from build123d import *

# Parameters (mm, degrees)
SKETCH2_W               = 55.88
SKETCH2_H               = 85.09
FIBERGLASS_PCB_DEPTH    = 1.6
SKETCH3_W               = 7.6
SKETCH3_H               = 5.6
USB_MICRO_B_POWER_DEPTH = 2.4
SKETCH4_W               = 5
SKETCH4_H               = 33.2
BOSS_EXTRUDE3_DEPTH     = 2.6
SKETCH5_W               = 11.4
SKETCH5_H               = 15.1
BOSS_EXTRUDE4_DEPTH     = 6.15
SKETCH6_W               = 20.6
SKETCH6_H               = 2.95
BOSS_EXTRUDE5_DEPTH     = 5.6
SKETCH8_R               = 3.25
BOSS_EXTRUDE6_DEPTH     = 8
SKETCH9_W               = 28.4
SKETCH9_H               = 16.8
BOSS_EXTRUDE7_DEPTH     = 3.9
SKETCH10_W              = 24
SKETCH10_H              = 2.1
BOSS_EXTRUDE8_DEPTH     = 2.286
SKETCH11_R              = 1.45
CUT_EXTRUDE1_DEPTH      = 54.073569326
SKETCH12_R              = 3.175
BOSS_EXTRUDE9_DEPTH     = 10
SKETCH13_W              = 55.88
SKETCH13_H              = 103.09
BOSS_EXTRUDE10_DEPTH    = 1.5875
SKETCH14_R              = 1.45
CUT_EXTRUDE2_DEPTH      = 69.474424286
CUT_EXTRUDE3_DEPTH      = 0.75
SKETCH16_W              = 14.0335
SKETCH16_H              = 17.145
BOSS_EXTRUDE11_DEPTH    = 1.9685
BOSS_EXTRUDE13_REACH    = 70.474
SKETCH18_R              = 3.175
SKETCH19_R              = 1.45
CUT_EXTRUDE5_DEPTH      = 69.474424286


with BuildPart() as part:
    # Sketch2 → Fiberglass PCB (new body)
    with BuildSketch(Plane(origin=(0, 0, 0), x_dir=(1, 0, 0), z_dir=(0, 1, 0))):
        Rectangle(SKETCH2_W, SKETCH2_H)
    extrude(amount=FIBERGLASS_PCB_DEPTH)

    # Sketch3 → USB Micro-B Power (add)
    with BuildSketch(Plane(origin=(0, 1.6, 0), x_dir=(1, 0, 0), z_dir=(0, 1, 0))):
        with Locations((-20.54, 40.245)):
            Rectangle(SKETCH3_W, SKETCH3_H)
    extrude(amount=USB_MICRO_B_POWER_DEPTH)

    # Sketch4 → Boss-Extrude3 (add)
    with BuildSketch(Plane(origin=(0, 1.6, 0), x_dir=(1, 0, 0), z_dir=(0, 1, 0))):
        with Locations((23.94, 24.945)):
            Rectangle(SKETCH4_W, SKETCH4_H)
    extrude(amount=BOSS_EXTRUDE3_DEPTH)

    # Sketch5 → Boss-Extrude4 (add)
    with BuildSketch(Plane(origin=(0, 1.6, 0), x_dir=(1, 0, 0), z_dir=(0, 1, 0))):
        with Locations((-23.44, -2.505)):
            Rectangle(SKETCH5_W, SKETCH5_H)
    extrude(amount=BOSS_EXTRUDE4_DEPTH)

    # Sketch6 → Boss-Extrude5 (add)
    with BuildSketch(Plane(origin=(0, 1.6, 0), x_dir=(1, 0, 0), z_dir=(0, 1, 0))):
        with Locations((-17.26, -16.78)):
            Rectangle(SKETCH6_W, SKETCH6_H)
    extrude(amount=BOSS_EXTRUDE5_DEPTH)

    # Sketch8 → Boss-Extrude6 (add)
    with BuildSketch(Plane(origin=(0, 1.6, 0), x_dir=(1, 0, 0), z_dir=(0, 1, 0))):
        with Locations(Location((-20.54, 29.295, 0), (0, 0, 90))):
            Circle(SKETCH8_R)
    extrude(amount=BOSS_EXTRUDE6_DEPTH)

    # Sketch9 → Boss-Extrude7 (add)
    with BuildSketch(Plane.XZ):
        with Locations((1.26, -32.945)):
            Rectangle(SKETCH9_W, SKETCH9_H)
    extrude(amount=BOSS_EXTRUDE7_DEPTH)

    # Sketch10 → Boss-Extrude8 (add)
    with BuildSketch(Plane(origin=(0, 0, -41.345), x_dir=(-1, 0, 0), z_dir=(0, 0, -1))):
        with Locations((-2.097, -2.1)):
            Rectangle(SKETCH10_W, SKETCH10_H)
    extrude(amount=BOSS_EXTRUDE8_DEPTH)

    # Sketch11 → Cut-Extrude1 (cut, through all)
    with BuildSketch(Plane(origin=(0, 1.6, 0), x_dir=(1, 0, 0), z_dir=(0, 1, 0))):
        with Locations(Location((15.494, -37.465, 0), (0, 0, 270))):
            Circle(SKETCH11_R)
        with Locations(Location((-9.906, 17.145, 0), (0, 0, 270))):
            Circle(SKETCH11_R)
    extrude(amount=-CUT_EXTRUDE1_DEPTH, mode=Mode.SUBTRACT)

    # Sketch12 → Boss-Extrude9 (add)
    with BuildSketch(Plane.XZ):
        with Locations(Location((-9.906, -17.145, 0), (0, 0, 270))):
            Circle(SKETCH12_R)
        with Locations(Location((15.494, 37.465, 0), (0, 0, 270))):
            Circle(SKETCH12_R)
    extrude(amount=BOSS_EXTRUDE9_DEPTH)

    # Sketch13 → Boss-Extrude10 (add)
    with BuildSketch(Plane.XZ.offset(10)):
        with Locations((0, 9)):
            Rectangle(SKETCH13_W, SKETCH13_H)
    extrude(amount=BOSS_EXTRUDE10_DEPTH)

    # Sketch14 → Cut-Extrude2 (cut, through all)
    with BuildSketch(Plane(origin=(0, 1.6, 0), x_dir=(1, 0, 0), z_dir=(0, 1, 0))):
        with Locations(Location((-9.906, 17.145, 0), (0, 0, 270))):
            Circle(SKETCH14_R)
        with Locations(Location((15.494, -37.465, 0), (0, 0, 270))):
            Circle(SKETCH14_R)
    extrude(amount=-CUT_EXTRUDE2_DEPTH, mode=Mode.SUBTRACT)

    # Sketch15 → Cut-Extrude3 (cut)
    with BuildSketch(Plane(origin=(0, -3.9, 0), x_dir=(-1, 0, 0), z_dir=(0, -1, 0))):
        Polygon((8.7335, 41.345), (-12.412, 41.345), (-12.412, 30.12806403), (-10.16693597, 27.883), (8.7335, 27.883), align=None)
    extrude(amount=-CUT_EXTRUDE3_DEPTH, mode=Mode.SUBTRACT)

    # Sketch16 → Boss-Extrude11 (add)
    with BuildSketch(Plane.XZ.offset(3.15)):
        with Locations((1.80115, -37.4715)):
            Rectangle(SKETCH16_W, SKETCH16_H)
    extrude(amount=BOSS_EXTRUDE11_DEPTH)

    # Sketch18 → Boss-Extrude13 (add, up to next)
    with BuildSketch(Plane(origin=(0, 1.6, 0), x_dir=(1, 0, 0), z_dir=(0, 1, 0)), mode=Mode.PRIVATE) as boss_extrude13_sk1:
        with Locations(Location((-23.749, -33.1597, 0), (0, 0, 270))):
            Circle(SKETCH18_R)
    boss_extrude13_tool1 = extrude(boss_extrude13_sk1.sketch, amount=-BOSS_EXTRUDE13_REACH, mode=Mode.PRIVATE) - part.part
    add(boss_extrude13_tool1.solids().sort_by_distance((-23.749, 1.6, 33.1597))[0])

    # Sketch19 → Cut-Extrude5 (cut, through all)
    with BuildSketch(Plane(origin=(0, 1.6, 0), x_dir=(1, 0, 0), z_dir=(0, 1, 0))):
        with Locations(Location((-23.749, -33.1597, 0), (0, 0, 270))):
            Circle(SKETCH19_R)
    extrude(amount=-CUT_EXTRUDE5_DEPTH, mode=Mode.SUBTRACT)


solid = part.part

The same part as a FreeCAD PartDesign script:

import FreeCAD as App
import Part
import Sketcher
Q = App.Units.Quantity


def add_polygon(sketch, points):
    """Adds a closed chain of lines whose ends are joined by coincident constraints."""
    first, n = sketch.GeometryCount, len(points)
    for a, b in zip(points, points[1:] + points[:1]):
        sketch.addGeometry(Part.LineSegment(App.Vector(*a, 0), App.Vector(*b, 0)), False)
    for i in range(n):
        sketch.addConstraint(Sketcher.Constraint("Coincident", first + i, 2, first + (i + 1) % n, 1))

doc = App.newDocument("Part")
body = doc.addObject("PartDesign::Body", "Body")

sketch1 = body.newObject("Sketcher::SketchObject", "Sketch")
sketch1.AttachmentSupport = (doc.getObject("XZ_Plane"), [""])
sketch1.MapMode = "FlatFace"
add_polygon(sketch1, [(-28, -43), (-28, 43), (28, 43), (28, -43)])
sketch1.addConstraint([
    Sketcher.Constraint("Vertical", 0),
    Sketcher.Constraint("Horizontal", 1),
    Sketcher.Constraint("Vertical", 2),
    Sketcher.Constraint("Horizontal", 3),
    Sketcher.Constraint("Symmetric", 0, 2, 2, 2, -1, 1),
    Sketcher.Constraint("DistanceX", 1, 1, 1, 2, Q("55.88 mm")),
    Sketcher.Constraint("DistanceY", 0, 1, 0, 2, Q("85.09 mm")),
])
pad1 = body.newObject("PartDesign::Pad", "Pad")
pad1.Profile = sketch1
pad1.Length = 1.6
pad1.Reversed = True

sketch2 = body.newObject("Sketcher::SketchObject", "Sketch001")
sketch2.AttachmentSupport = (doc.getObject("XZ_Plane"), [""])
sketch2.MapMode = "FlatFace"
sketch2.AttachmentOffset = App.Placement(App.Vector(0, 0, -1.6), App.Rotation())
add_polygon(sketch2, [(-24, -43), (-24, -37), (-17, -37), (-17, -43)])
sketch2.addConstraint([
    Sketcher.Constraint("Vertical", 0),
    Sketcher.Constraint("Horizontal", 1),
    Sketcher.Constraint("Vertical", 2),
    Sketcher.Constraint("Horizontal", 3),
    Sketcher.Constraint("DistanceX", 1, 1, 1, 2, Q("7.6 mm")),
    Sketcher.Constraint("DistanceY", 0, 1, 0, 2, Q("5.6 mm")),
    Sketcher.Constraint("DistanceX", 0, 2, -1, 1, Q("24.34 mm")),
    Sketcher.Constraint("DistanceY", 0, 2, -1, 1, Q("37.445 mm")),
])
pad2 = body.newObject("PartDesign::Pad", "Pad001")
pad2.Profile = sketch2
pad2.Length = 2.4
pad2.Reversed = True

sketch3 = body.newObject("Sketcher::SketchObject", "Sketch002")
sketch3.AttachmentSupport = (doc.getObject("XZ_Plane"), [""])
sketch3.MapMode = "FlatFace"
sketch3.AttachmentOffset = App.Placement(App.Vector(0, 0, -1.6), App.Rotation())
add_polygon(sketch3, [(21, -42), (21, -8), (26, -8), (26, -42)])
sketch3.addConstraint([
    Sketcher.Constraint("Vertical", 0),
    Sketcher.Constraint("Horizontal", 1),
    Sketcher.Constraint("Vertical", 2),
    Sketcher.Constraint("Horizontal", 3),
    Sketcher.Constraint("DistanceX", 1, 1, 1, 2, Q("5 mm")),
    Sketcher.Constraint("DistanceY", 0, 1, 0, 2, Q("33.2 mm")),
    Sketcher.Constraint("DistanceX", -1, 1, 0, 2, Q("21.44 mm")),
    Sketcher.Constraint("DistanceY", 0, 2, -1, 1, Q("8.345 mm")),
])
pad3 = body.newObject("PartDesign::Pad", "Pad002")
pad3.Profile = sketch3
pad3.Length = 2.6
pad3.Reversed = True

sketch4 = body.newObject("Sketcher::SketchObject", "Sketch003")
sketch4.AttachmentSupport = (doc.getObject("XZ_Plane"), [""])
sketch4.MapMode = "FlatFace"
sketch4.AttachmentOffset = App.Placement(App.Vector(0, 0, -1.6), App.Rotation())
add_polygon(sketch4, [(-29, -5), (-29, 10), (-18, 10), (-18, -5)])
sketch4.addConstraint([
    Sketcher.Constraint("Vertical", 0),
    Sketcher.Constraint("Horizontal", 1),
    Sketcher.Constraint("Vertical", 2),
    Sketcher.Constraint("Horizontal", 3),
    Sketcher.Constraint("DistanceX", 1, 1, 1, 2, Q("11.4 mm")),
    Sketcher.Constraint("DistanceY", 0, 1, 0, 2, Q("15.1 mm")),
    Sketcher.Constraint("DistanceX", 0, 2, -1, 1, Q("29.14 mm")),
    Sketcher.Constraint("DistanceY", -1, 1, 0, 2, Q("10.055 mm")),
])
pad4 = body.newObject("PartDesign::Pad", "Pad003")
pad4.Profile = sketch4
pad4.Length = 6.15
pad4.Reversed = True

sketch5 = body.newObject("Sketcher::SketchObject", "Sketch004")
sketch5.AttachmentSupport = (doc.getObject("XZ_Plane"), [""])
sketch5.MapMode = "FlatFace"
sketch5.AttachmentOffset = App.Placement(App.Vector(0, 0, -1.6), App.Rotation())
add_polygon(sketch5, [(-27.6, 15.3), (-27.6, 18.3), (-7, 18.3), (-7, 15.3)])
sketch5.addConstraint([
    Sketcher.Constraint("Vertical", 0),
    Sketcher.Constraint("Horizontal", 1),
    Sketcher.Constraint("Vertical", 2),
    Sketcher.Constraint("Horizontal", 3),
    Sketcher.Constraint("DistanceX", 1, 1, 1, 2, Q("20.6 mm")),
    Sketcher.Constraint("DistanceY", 0, 1, 0, 2, Q("2.95 mm")),
    Sketcher.Constraint("DistanceX", 0, 2, -1, 1, Q("27.56 mm")),
    Sketcher.Constraint("DistanceY", -1, 1, 0, 2, Q("18.255 mm")),
])
pad5 = body.newObject("PartDesign::Pad", "Pad004")
pad5.Profile = sketch5
pad5.Length = 5.6
pad5.Reversed = True

sketch6 = body.newObject("Sketcher::SketchObject", "Sketch005")
sketch6.AttachmentSupport = (doc.getObject("XZ_Plane"), [""])
sketch6.MapMode = "FlatFace"
sketch6.AttachmentOffset = App.Placement(App.Vector(0, 0, -1.6), App.Rotation())
sketch6.addGeometry(Part.Circle(App.Vector(-20.5, -29.3, 0), App.Vector(0, 0, 1), 3.2), False)
sketch6.addConstraint([
    Sketcher.Constraint("Diameter", 0, Q("6.5 mm")),
    Sketcher.Constraint("DistanceX", 0, 3, -1, 1, Q("20.54 mm")),
    Sketcher.Constraint("DistanceY", 0, 3, -1, 1, Q("29.295 mm")),
])
pad6 = body.newObject("PartDesign::Pad", "Pad005")
pad6.Profile = sketch6
pad6.Length = 8
pad6.Reversed = True

sketch7 = body.newObject("Sketcher::SketchObject", "Sketch006")
sketch7.AttachmentSupport = (doc.getObject("XZ_Plane"), [""])
sketch7.MapMode = "FlatFace"
add_polygon(sketch7, [(-13, -25), (-13, -41), (15, -41), (15, -25)])
sketch7.addConstraint([
    Sketcher.Constraint("Vertical", 0),
    Sketcher.Constraint("Horizontal", 1),
    Sketcher.Constraint("Vertical", 2),
    Sketcher.Constraint("Horizontal", 3),
    Sketcher.Constraint("DistanceX", 1, 1, 1, 2, Q("28.4 mm")),
    Sketcher.Constraint("DistanceY", 0, 2, 0, 1, Q("16.8 mm")),
    Sketcher.Constraint("DistanceX", 0, 2, -1, 1, Q("12.94 mm")),
    Sketcher.Constraint("DistanceY", 0, 2, -1, 1, Q("41.345 mm")),
])
pad7 = body.newObject("PartDesign::Pad", "Pad006")
pad7.Profile = sketch7
pad7.Length = 3.9

sketch8 = body.newObject("Sketcher::SketchObject", "Sketch007")
sketch8.AttachmentSupport = (doc.getObject("XY_Plane"), [""])
sketch8.MapMode = "FlatFace"
sketch8.AttachmentOffset = App.Placement(App.Vector(0, 0, -41.345), App.Rotation())
add_polygon(sketch8, [(14.1, -1.1), (14.1, -3.1), (-9.9, -3.1), (-9.9, -1.1)])
sketch8.addConstraint([
    Sketcher.Constraint("Vertical", 0),
    Sketcher.Constraint("Horizontal", 1),
    Sketcher.Constraint("Vertical", 2),
    Sketcher.Constraint("Horizontal", 3),
    Sketcher.Constraint("DistanceX", 1, 2, 1, 1, Q("24 mm")),
    Sketcher.Constraint("DistanceY", 0, 2, 0, 1, Q("2.1 mm")),
    Sketcher.Constraint("DistanceY", 0, 2, -1, 1, Q("3.15 mm")),
    Sketcher.Constraint("DistanceX", -1, 1, 0, 2, Q("14.097 mm")),
])
pad8 = body.newObject("PartDesign::Pad", "Pad007")
pad8.Profile = sketch8
pad8.Length = 2.286
pad8.Reversed = True

sketch9 = body.newObject("Sketcher::SketchObject", "Sketch008")
sketch9.AttachmentSupport = (doc.getObject("XZ_Plane"), [""])
sketch9.MapMode = "FlatFace"
sketch9.AttachmentOffset = App.Placement(App.Vector(0, 0, -1.6), App.Rotation())
sketch9.addGeometry([
    Part.Circle(App.Vector(15.5, 37.5, 0), App.Vector(0, 0, 1), 1.4),
    Part.Circle(App.Vector(-9.9, -17.1, 0), App.Vector(0, 0, 1), 1.4),
], False)
sketch9.addConstraint([
    Sketcher.Constraint("Equal", 0, 1),
    Sketcher.Constraint("Diameter", 0, Q("2.9 mm")),
    Sketcher.Constraint("DistanceX", 1, 3, 0, 3, Q("25.4 mm")),
    Sketcher.Constraint("DistanceY", 1, 3, 0, 3, Q("54.61 mm")),
    Sketcher.Constraint("DistanceX", -1, 1, 0, 3, Q("15.494 mm")),
    Sketcher.Constraint("DistanceY", -1, 1, 0, 3, Q("37.465 mm")),
])
pocket1 = body.newObject("PartDesign::Pocket", "Pocket")
pocket1.Profile = sketch9
pocket1.Type = "ThroughAll"
pocket1.Reversed = True

sketch10 = body.newObject("Sketcher::SketchObject", "Sketch009")
sketch10.AttachmentSupport = (doc.getObject("XZ_Plane"), [""])
sketch10.MapMode = "FlatFace"
sketch10.addGeometry([
    Part.Circle(App.Vector(-9.9, -17.1, 0), App.Vector(0, 0, 1), 3.2),
    Part.Circle(App.Vector(15.5, 37.5, 0), App.Vector(0, 0, 1), 3.2),
], False)
sketch10.addConstraint([
    Sketcher.Constraint("Equal", 0, 1),
    Sketcher.Constraint("Diameter", 0, Q("6.35 mm")),
    Sketcher.Constraint("DistanceX", 0, 3, 1, 3, Q("25.4 mm")),
    Sketcher.Constraint("DistanceY", 0, 3, 1, 3, Q("54.61 mm")),
    Sketcher.Constraint("DistanceX", 0, 3, -1, 1, Q("9.906 mm")),
    Sketcher.Constraint("DistanceY", 0, 3, -1, 1, Q("17.145 mm")),
])
pad9 = body.newObject("PartDesign::Pad", "Pad008")
pad9.Profile = sketch10
pad9.Length = 10

sketch11 = body.newObject("Sketcher::SketchObject", "Sketch010")
sketch11.AttachmentSupport = (doc.getObject("XZ_Plane"), [""])
sketch11.MapMode = "FlatFace"
sketch11.AttachmentOffset = App.Placement(App.Vector(0, 0, 10), App.Rotation())
add_polygon(sketch11, [(-28, 61), (-28, -43), (28, -43), (28, 61)])
sketch11.addConstraint([
    Sketcher.Constraint("Vertical", 0),
    Sketcher.Constraint("Horizontal", 1),
    Sketcher.Constraint("Vertical", 2),
    Sketcher.Constraint("Horizontal", 3),
    Sketcher.Constraint("DistanceX", 1, 1, 1, 2, Q("55.88 mm")),
    Sketcher.Constraint("DistanceY", 0, 2, 0, 1, Q("103.09 mm")),
    Sketcher.Constraint("DistanceX", 0, 2, -1, 1, Q("27.94 mm")),
    Sketcher.Constraint("DistanceY", 0, 2, -1, 1, Q("42.545 mm")),
])
pad10 = body.newObject("PartDesign::Pad", "Pad009")
pad10.Profile = sketch11
pad10.Length = 1.5875

sketch12 = body.newObject("Sketcher::SketchObject", "Sketch011")
sketch12.AttachmentSupport = (doc.getObject("XZ_Plane"), [""])
sketch12.MapMode = "FlatFace"
sketch12.AttachmentOffset = App.Placement(App.Vector(0, 0, -1.6), App.Rotation())
sketch12.addGeometry([
    Part.Circle(App.Vector(-9.9, -17.1, 0), App.Vector(0, 0, 1), 1.4),
    Part.Circle(App.Vector(15.5, 37.5, 0), App.Vector(0, 0, 1), 1.4),
], False)
sketch12.addConstraint([
    Sketcher.Constraint("Equal", 0, 1),
    Sketcher.Constraint("Diameter", 0, Q("2.9 mm")),
    Sketcher.Constraint("DistanceX", 0, 3, 1, 3, Q("25.4 mm")),
    Sketcher.Constraint("DistanceY", 0, 3, 1, 3, Q("54.61 mm")),
    Sketcher.Constraint("DistanceX", 0, 3, -1, 1, Q("9.906 mm")),
    Sketcher.Constraint("DistanceY", 0, 3, -1, 1, Q("17.145 mm")),
])
pocket2 = body.newObject("PartDesign::Pocket", "Pocket001")
pocket2.Profile = sketch12
pocket2.Type = "ThroughAll"
pocket2.Reversed = True

sketch13 = body.newObject("Sketcher::SketchObject", "Sketch012")
sketch13.AttachmentSupport = (doc.getObject("XZ_Plane"), [""])
sketch13.MapMode = "FlatFace"
sketch13.AttachmentOffset = App.Placement(App.Vector(0, 0, 3.9), App.Rotation())
add_polygon(sketch13, [(-8.7, -41.3), (12.4, -41.3), (12.4, -30.1), (10.2, -27.9), (-8.7, -27.9)])
sketch13.addConstraint([
    Sketcher.Constraint("Horizontal", 0),
    Sketcher.Constraint("Vertical", 1),
    Sketcher.Constraint("Horizontal", 3),
    Sketcher.Constraint("Vertical", 4),
    Sketcher.Constraint("Angle", 2, Q("135 deg")),
    Sketcher.Constraint("DistanceY", 4, 2, 4, 1, Q("13.462 mm")),
    Sketcher.Constraint("Distance", 2, Q("3.175 mm")),
    Sketcher.Constraint("DistanceX", 0, 1, 0, 2, Q("21.1455 mm")),
    Sketcher.Constraint("DistanceX", -1, 1, 0, 2, Q("12.412 mm")),
    Sketcher.Constraint("DistanceY", 0, 2, -1, 1, Q("41.345 mm")),
])
pocket3 = body.newObject("PartDesign::Pocket", "Pocket002")
pocket3.Profile = sketch13
pocket3.Length = 0.75

sketch14 = body.newObject("Sketcher::SketchObject", "Sketch013")
sketch14.AttachmentSupport = (doc.getObject("XZ_Plane"), [""])
sketch14.MapMode = "FlatFace"
sketch14.AttachmentOffset = App.Placement(App.Vector(0, 0, 3.15), App.Rotation())
add_polygon(sketch14, [(-5, -29), (-5, -46), (9, -46), (9, -29)])
sketch14.addConstraint([
    Sketcher.Constraint("Vertical", 0),
    Sketcher.Constraint("Horizontal", 1),
    Sketcher.Constraint("Vertical", 2),
    Sketcher.Constraint("Horizontal", 3),
    Sketcher.Constraint("DistanceY", 0, 2, 0, 1, Q("17.145 mm")),
    Sketcher.Constraint("DistanceX", 1, 1, 1, 2, Q("14.0335 mm")),
    Sketcher.Constraint("DistanceY", 0, 2, -1, 1, Q("46.044 mm")),
    Sketcher.Constraint("DistanceX", 0, 2, -1, 1, Q("5.2156 mm")),
])
pad11 = body.newObject("PartDesign::Pad", "Pad010")
pad11.Profile = sketch14
pad11.Length = 1.9685

sketch15 = body.newObject("Sketcher::SketchObject", "Sketch014")
sketch15.AttachmentSupport = (doc.getObject("XZ_Plane"), [""])
sketch15.MapMode = "FlatFace"
sketch15.AttachmentOffset = App.Placement(App.Vector(0, 0, -1.6), App.Rotation())
sketch15.addGeometry(Part.Circle(App.Vector(-23.7, 33.2, 0), App.Vector(0, 0, 1), 3.2), False)
sketch15.addConstraint([
    Sketcher.Constraint("Diameter", 0, Q("6.35 mm")),
    Sketcher.Constraint("DistanceX", 0, 3, -1, 1, Q("23.749 mm")),
    Sketcher.Constraint("DistanceY", -1, 1, 0, 3, Q("33.1597 mm")),
])
pad12 = body.newObject("PartDesign::Pad", "Pad011")
pad12.Profile = sketch15
pad12.Length = 11.6

sketch16 = body.newObject("Sketcher::SketchObject", "Sketch015")
sketch16.AttachmentSupport = (doc.getObject("XZ_Plane"), [""])
sketch16.MapMode = "FlatFace"
sketch16.AttachmentOffset = App.Placement(App.Vector(0, 0, -1.6), App.Rotation())
sketch16.addGeometry(Part.Circle(App.Vector(-23.7, 33.2, 0), App.Vector(0, 0, 1), 1.4), False)
sketch16.addConstraint([
    Sketcher.Constraint("Diameter", 0, Q("2.9 mm")),
    Sketcher.Constraint("DistanceX", 0, 3, -1, 1, Q("23.749 mm")),
    Sketcher.Constraint("DistanceY", -1, 1, 0, 3, Q("33.1597 mm")),
])
pocket4 = body.newObject("PartDesign::Pocket", "Pocket003")
pocket4.Profile = sketch16
pocket4.Type = "ThroughAll"
pocket4.Reversed = True

doc.recompute()
